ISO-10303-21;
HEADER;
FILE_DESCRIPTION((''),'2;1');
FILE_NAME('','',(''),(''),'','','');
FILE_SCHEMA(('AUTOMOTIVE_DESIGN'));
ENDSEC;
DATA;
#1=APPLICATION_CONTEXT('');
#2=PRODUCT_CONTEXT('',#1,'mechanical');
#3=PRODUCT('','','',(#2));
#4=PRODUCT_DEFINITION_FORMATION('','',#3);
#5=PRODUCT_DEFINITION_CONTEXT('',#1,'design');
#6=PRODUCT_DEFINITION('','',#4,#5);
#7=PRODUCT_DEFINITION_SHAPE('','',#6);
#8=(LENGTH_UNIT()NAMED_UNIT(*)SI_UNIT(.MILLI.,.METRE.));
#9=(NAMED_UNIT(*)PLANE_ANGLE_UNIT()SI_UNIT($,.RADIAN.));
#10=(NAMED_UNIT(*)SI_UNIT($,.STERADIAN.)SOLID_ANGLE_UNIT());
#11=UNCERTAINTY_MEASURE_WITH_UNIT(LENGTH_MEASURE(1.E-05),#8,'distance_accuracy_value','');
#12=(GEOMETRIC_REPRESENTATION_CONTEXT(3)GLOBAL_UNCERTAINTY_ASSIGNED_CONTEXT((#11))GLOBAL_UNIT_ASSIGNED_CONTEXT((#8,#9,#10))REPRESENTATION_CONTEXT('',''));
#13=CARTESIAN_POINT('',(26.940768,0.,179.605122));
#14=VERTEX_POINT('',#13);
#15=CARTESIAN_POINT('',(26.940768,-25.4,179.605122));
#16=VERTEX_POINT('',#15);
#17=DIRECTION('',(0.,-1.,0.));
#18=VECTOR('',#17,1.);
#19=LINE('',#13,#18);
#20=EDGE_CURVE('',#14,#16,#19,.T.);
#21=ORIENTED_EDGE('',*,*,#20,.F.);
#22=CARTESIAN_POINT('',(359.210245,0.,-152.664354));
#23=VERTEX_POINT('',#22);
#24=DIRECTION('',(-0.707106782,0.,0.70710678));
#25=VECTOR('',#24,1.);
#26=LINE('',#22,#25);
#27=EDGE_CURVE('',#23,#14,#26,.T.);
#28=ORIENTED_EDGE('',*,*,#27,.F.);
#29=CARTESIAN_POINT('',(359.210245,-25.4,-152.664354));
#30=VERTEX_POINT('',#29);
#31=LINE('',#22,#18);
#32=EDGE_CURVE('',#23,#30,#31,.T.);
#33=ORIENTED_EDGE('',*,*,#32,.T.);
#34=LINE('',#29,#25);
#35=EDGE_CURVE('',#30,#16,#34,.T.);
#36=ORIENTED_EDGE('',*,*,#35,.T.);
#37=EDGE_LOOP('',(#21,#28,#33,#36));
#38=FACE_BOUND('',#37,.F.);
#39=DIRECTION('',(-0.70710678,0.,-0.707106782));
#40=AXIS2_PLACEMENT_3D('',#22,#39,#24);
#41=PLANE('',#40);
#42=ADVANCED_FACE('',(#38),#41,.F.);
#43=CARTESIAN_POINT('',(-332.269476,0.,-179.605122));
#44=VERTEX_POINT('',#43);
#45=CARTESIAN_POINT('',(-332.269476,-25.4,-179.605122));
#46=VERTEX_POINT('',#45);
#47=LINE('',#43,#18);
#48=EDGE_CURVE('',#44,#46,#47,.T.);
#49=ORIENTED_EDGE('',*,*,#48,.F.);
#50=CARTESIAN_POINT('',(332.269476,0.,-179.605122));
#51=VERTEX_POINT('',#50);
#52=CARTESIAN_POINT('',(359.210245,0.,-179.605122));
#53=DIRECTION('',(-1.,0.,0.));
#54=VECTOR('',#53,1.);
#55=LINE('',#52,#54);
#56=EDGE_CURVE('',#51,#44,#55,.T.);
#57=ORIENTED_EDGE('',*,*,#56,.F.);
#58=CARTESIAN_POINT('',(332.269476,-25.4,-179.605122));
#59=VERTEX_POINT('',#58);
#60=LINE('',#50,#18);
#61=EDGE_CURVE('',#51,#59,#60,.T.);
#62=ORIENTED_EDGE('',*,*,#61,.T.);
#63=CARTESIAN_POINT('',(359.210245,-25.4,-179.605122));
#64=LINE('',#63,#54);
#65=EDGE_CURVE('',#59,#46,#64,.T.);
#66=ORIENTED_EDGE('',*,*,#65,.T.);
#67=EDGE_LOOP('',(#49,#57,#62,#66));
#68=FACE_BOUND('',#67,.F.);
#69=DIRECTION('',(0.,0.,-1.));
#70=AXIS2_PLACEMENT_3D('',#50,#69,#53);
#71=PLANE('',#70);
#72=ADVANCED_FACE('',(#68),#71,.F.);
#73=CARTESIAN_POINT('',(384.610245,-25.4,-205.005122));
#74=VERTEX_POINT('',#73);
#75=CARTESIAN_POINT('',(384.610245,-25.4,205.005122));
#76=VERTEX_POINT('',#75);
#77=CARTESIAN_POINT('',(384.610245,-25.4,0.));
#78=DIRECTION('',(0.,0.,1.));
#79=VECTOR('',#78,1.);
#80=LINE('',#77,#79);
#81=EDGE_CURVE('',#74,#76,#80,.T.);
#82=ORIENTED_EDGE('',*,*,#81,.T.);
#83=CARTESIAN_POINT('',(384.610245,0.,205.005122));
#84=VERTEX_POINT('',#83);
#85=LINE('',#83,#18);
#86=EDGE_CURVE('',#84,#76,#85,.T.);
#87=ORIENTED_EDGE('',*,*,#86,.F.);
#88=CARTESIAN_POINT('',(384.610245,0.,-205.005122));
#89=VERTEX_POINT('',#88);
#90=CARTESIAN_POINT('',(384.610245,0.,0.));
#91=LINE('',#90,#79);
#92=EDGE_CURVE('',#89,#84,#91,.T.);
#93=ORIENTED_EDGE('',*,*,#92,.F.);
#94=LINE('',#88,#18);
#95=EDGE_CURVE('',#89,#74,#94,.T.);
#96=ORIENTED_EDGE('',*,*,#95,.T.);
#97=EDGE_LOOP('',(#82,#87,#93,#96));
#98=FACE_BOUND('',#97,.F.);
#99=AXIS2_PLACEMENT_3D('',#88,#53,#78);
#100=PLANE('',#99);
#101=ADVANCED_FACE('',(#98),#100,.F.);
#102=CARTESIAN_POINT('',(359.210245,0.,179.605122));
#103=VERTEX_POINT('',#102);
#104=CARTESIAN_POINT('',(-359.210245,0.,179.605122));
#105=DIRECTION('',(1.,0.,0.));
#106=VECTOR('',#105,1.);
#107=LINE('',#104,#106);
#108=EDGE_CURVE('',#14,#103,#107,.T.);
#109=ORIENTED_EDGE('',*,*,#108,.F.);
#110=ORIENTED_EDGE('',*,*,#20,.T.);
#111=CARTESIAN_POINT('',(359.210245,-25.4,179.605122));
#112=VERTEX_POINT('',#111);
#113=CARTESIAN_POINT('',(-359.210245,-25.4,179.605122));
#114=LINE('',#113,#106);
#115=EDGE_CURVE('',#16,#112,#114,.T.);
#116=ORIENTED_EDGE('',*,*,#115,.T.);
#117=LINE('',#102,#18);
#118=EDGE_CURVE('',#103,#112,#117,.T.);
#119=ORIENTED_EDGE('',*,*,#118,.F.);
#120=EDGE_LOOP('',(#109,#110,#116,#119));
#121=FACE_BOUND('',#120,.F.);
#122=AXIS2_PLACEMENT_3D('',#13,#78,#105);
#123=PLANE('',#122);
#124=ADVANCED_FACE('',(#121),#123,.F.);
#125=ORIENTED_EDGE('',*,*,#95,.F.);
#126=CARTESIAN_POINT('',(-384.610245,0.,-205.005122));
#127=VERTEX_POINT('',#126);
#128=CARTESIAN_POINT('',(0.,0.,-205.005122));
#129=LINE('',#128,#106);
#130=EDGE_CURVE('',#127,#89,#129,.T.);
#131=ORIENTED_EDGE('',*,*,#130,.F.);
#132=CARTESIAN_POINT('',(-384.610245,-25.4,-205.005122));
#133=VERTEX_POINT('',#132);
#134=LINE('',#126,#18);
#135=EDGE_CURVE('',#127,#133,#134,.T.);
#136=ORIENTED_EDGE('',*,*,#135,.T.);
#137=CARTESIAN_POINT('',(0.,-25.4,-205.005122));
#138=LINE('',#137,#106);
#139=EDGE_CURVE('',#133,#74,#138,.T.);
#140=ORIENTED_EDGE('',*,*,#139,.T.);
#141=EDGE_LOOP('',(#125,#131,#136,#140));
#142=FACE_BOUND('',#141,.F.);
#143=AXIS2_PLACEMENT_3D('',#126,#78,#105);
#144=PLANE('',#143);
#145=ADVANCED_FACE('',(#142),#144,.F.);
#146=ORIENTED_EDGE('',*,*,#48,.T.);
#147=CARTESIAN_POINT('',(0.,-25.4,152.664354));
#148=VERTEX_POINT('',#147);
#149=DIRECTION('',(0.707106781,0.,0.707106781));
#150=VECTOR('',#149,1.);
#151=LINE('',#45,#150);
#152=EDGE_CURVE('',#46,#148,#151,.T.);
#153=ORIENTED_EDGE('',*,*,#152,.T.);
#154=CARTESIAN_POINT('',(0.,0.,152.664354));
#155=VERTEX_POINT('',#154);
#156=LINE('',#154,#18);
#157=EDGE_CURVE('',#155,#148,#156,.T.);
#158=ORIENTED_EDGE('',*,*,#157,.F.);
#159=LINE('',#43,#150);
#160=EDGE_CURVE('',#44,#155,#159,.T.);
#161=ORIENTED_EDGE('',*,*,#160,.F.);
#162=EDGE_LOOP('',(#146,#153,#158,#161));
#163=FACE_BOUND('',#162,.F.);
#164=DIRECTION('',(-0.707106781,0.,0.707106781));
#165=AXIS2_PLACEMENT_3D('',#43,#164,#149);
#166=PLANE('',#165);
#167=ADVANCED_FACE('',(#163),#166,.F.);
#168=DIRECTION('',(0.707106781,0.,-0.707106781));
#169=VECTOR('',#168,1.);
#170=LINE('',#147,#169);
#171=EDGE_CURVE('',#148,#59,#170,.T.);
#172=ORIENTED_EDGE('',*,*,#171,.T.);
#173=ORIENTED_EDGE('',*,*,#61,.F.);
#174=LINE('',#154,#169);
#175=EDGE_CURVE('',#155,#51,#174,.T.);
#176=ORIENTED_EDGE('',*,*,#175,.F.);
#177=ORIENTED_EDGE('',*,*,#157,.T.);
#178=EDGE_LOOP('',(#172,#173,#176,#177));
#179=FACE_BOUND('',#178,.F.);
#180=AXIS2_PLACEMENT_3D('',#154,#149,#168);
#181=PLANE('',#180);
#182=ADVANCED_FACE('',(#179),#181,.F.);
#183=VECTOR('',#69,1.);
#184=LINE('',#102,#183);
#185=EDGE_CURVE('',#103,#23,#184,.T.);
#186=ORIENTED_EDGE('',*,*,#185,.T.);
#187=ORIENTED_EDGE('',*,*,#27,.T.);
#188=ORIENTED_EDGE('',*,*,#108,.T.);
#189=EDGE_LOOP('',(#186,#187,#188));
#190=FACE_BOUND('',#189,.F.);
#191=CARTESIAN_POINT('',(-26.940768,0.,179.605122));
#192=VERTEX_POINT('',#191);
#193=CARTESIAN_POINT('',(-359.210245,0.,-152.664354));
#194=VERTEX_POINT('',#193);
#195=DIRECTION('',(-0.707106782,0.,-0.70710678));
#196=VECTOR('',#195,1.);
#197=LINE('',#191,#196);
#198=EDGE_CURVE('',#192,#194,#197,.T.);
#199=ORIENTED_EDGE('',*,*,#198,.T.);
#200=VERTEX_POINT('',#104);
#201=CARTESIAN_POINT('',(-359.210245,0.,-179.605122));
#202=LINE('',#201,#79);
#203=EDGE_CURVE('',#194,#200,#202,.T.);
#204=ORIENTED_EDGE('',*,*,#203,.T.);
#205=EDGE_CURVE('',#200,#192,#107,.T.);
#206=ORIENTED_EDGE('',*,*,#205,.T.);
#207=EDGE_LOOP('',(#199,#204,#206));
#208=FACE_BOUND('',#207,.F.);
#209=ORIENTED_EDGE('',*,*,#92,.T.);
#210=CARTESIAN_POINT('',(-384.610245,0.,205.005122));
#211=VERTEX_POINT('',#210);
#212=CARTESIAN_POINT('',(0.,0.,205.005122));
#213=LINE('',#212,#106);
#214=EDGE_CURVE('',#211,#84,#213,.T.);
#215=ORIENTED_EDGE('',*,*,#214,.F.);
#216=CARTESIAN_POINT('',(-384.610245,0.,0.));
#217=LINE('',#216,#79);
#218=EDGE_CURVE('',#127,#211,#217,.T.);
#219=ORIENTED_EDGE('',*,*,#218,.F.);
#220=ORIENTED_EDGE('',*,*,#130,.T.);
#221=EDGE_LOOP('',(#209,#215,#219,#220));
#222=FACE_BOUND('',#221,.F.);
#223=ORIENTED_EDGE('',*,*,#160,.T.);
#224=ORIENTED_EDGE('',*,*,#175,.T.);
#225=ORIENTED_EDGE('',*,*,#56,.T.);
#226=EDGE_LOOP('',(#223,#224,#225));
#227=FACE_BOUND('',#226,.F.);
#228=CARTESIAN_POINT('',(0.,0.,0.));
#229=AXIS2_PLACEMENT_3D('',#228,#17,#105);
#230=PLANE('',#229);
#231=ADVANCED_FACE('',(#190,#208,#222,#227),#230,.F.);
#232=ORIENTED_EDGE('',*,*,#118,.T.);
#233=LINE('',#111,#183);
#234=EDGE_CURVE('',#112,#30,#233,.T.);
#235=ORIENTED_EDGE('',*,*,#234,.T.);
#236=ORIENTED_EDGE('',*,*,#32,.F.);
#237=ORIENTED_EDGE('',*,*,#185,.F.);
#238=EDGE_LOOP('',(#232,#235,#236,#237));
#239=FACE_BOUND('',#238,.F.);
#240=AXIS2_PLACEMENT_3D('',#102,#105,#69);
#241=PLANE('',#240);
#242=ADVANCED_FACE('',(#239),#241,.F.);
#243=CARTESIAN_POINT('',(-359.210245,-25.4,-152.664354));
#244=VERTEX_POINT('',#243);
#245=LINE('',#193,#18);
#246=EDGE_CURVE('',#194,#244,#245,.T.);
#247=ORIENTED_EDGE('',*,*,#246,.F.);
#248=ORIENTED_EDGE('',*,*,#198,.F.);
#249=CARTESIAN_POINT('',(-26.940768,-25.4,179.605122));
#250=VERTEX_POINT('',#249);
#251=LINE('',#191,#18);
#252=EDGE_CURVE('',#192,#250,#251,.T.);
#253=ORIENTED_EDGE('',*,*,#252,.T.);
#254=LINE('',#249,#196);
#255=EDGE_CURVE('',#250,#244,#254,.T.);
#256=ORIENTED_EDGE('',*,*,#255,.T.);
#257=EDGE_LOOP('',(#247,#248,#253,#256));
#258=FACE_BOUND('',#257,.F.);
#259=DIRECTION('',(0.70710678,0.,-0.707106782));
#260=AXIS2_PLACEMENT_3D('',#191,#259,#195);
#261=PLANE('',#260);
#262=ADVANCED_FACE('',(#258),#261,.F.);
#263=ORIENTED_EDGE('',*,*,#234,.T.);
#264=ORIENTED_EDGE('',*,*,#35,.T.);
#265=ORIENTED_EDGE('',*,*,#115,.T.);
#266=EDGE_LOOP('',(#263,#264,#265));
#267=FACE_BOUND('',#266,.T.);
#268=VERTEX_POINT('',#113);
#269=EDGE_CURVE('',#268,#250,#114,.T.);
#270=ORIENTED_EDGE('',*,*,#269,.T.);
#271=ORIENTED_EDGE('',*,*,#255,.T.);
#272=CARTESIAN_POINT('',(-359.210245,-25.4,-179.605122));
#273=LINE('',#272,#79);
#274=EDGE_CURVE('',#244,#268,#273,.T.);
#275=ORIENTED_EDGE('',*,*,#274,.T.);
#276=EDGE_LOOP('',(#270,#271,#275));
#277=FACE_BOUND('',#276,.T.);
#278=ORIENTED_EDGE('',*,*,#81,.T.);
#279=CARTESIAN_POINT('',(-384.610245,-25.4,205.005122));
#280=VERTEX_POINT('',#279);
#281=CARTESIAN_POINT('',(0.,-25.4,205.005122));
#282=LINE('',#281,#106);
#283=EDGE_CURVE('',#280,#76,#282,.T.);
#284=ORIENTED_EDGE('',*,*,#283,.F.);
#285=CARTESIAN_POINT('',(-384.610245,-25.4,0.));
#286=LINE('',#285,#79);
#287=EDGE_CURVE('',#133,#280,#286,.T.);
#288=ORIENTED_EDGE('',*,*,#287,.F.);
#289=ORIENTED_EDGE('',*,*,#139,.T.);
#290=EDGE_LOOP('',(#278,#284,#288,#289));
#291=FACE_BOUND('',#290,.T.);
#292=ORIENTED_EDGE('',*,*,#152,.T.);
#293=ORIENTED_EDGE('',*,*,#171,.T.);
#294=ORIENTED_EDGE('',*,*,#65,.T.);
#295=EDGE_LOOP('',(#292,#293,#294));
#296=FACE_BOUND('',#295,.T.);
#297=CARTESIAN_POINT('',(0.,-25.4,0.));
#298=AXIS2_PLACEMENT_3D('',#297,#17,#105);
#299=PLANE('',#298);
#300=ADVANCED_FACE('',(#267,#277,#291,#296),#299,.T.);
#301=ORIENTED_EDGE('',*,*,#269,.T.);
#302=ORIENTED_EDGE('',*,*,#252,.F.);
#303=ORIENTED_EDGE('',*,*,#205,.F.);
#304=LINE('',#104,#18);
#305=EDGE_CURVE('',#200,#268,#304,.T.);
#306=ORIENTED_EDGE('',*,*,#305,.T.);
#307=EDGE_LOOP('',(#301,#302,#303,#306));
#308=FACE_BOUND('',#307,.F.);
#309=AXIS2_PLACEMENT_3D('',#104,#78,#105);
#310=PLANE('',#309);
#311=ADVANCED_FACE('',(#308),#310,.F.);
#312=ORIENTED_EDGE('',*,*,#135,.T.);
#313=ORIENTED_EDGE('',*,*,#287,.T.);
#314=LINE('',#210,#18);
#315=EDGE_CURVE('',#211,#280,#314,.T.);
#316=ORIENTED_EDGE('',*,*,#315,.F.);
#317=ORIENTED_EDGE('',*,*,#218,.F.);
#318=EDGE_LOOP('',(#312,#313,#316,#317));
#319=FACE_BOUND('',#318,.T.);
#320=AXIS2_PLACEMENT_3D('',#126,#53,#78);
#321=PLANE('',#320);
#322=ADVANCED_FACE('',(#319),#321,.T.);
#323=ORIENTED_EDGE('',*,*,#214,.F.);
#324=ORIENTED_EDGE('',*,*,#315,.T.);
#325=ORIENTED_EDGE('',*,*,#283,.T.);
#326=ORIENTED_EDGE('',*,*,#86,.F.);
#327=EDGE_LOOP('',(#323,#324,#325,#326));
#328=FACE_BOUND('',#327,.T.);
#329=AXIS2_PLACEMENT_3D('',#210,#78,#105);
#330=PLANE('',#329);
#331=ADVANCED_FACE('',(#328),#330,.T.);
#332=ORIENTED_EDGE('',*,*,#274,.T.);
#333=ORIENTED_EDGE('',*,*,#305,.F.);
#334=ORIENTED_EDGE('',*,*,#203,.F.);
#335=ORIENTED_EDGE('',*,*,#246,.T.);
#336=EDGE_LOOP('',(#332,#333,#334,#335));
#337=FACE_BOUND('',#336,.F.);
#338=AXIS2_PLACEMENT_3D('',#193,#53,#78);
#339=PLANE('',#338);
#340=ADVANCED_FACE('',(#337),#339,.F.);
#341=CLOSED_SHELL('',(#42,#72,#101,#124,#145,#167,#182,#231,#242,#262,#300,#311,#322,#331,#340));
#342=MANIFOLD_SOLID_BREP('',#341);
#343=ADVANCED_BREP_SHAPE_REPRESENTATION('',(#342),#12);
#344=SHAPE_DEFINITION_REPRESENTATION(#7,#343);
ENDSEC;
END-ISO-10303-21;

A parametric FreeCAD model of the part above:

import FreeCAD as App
import Part
import Sketcher

V = App.Vector
Q = App.Units.Quantity

doc = App.newDocument("Part")
params = doc.addObject("Spreadsheet::Sheet", "Params")
for row, (alias, value) in enumerate([
    ("sketch1_length", "18.5 in"),
    ("pad1_length", "1 in"),
], start=1):
    params.set(f"A{row}", alias)
    params.set(f"B{row}", "=" + value)
    params.setAlias(f"B{row}", alias)

body = doc.addObject("PartDesign::Body", "Body")

sketch1 = body.newObject("Sketcher::SketchObject", "Sketch")
sketch1.AttachmentSupport = (doc.getObject("XZ_Plane"), [""])
sketch1.MapMode = "FlatFace"
sketch1.addGeometry([
    Part.LineSegment(V(-385, 205, 0), V(-385, -205, 0)),
    Part.LineSegment(V(-385, -205, 0), V(385, -205, 0)),
    Part.LineSegment(V(385, -205, 0), V(385, 205, 0)),
    Part.LineSegment(V(385, 205, 0), V(-385, 205, 0)),
    Part.LineSegment(V(332, -180, 0), V(-332, -180, 0)),
    Part.LineSegment(V(-332, -180, 0), V(0, 153, 0)),
    Part.LineSegment(V(0, 153, 0), V(332, -180, 0)),
    Part.LineSegment(V(27, 180, 0), V(359, 180, 0)),
    Part.LineSegment(V(359, 180, 0), V(359, -153, 0)),
    Part.LineSegment(V(359, -153, 0), V(27, 180, 0)),
    Part.LineSegment(V(-359, -153, 0), V(-359, 180, 0)),
    Part.LineSegment(V(-359, 180, 0), V(-27, 180, 0)),
    Part.LineSegment(V(-27, 180, 0), V(-359, -153, 0)),
], False)
sketch1.addConstraint([
    Sketcher.Constraint("Coincident", 0, 2, 1, 1),
    Sketcher.Constraint("Coincident", 1, 2, 2, 1),
    Sketcher.Constraint("Coincident", 2, 2, 3, 1),
    Sketcher.Constraint("Coincident", 3, 2, 0, 1),
    Sketcher.Constraint("Coincident", 4, 2, 5, 1),
    Sketcher.Constraint("Coincident", 5, 2, 6, 1),
    Sketcher.Constraint("Coincident", 6, 2, 4, 1),
    Sketcher.Constraint("Coincident", 7, 2, 8, 1),
    Sketcher.Constraint("Coincident", 8, 2, 9, 1),
    Sketcher.Constraint("Coincident", 9, 2, 7, 1),
    Sketcher.Constraint("Coincident", 10, 2, 11, 1),
    Sketcher.Constraint("Coincident", 11, 2, 12, 1),
    Sketcher.Constraint("Coincident", 12, 2, 10, 1),
    Sketcher.Constraint("Vertical", 0),
    Sketcher.Constraint("Horizontal", 1),
    Sketcher.Constraint("Vertical", 2),
    Sketcher.Constraint("Horizontal", 3),
    Sketcher.Constraint("Horizontal", 4),
    Sketcher.Constraint("Horizontal", 7),
    Sketcher.Constraint("Vertical", 8),
    Sketcher.Constraint("Vertical", 10),
    Sketcher.Constraint("Horizontal", 11),
    Sketcher.Constraint("Symmetric", 0, 2, 2, 2, -1, 1),
    Sketcher.Constraint("Symmetric", 7, 2, 10, 2, -2),
    Sketcher.Constraint("PointOnObject", 5, 2, -2),
    Sketcher.Constraint("Perpendicular", 5, 6),
    Sketcher.Constraint("Parallel", 6, 9),
    Sketcher.Constraint("Perpendicular", 9, 12),
    Sketcher.Constraint("Horizontal", 8, 2, 12, 2),
    Sketcher.Constraint("Equal", 7, 11),
    Sketcher.Constraint("Equal", 6, 9),
    Sketcher.Constraint("DistanceY", 0, 2, 4, 2, Q("1 in")),
    Sketcher.Constraint("DistanceX", 7, 2, 2, 2, Q("1 in")),
    Sketcher.Constraint("DistanceY", 7, 2, 2, 2, Q("1 in")),
    Sketcher.Constraint("Distance", 5, Q("18.5 in")),
    Sketcher.Constraint("DistanceX", 1, 1, 1, 2, 769.22049),
    Sketcher.Constraint("DistanceY", 0, 2, 0, 1, 410.010244),
])
sketch1.setExpression("Constraints[34]", "Params.sketch1_length")
pad1 = body.newObject("PartDesign::Pad", "Pad")
pad1.Profile = sketch1
pad1.setExpression("Length", "Params.pad1_length")

doc.recompute()
